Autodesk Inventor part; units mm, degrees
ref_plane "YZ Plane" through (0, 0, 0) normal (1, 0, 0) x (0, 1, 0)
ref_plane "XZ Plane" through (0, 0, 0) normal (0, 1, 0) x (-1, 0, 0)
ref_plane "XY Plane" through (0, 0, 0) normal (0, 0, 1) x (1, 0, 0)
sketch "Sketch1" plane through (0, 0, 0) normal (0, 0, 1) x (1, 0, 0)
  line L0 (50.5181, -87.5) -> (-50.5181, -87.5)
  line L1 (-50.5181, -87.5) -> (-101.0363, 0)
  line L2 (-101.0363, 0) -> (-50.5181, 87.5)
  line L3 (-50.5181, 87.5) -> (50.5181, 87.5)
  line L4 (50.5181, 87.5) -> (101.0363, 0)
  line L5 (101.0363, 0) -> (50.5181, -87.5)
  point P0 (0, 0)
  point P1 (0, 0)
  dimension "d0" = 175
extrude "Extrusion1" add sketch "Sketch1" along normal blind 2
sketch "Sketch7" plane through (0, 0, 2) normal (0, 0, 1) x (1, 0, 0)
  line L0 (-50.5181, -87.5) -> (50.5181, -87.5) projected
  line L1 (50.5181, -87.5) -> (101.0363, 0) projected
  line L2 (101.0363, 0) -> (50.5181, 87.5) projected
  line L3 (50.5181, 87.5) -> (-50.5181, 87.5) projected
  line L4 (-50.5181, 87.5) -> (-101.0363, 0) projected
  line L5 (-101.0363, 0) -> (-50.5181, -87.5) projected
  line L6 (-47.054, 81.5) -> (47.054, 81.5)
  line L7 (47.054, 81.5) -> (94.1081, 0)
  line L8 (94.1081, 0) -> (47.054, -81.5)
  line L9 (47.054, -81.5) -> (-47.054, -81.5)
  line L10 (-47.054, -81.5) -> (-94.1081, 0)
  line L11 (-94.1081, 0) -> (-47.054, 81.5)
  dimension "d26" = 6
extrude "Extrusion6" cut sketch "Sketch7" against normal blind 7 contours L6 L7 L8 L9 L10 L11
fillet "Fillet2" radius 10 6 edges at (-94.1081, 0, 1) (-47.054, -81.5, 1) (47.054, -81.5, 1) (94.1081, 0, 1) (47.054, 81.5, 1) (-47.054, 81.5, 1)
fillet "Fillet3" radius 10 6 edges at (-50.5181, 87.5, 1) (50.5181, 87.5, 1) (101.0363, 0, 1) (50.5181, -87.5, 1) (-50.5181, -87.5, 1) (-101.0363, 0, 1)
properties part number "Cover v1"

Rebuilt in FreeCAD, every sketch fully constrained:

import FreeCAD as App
import Part
import Sketcher
Q = App.Units.Quantity


def edges_at(feature, points):
    """Names of the edges that pass closest to the given points."""
    edges = feature.Shape.Edges
    near = lambda p: min(range(len(edges)), key=lambda i: edges[i].distToShape(Part.Vertex(*p))[0])
    return sorted({f"Edge{near(p) + 1}" for p in points})

doc = App.newDocument("Part")
body = doc.addObject("PartDesign::Body", "Body")

sketch1 = doc.addObject("Sketcher::SketchObject", "Sketch")
body.addObject(sketch1)
sketch1.AttachmentSupport = (doc.XY_Plane, [""])
sketch1.MapMode = "FlatFace"
sketch1.addGeometry([
    Part.LineSegment(App.Vector(-51, -88, 0), App.Vector(51, -88, 0)),
    Part.LineSegment(App.Vector(51, -88, 0), App.Vector(101, 0, 0)),
    Part.LineSegment(App.Vector(101, 0, 0), App.Vector(51, 88, 0)),
    Part.LineSegment(App.Vector(51, 88, 0), App.Vector(-51, 88, 0)),
    Part.LineSegment(App.Vector(-51, 88, 0), App.Vector(-101, 0, 0)),
    Part.LineSegment(App.Vector(-101, 0, 0), App.Vector(-51, -88, 0)),
], False)
sketch1.addConstraint([
    Sketcher.Constraint("Coincident", 0, 2, 1, 1),
    Sketcher.Constraint("Coincident", 1, 2, 2, 1),
    Sketcher.Constraint("Coincident", 2, 2, 3, 1),
    Sketcher.Constraint("Coincident", 3, 2, 4, 1),
    Sketcher.Constraint("Coincident", 4, 2, 5, 1),
    Sketcher.Constraint("Coincident", 5, 2, 0, 1),
    Sketcher.Constraint("Horizontal", 0),
    Sketcher.Constraint("Horizontal", 3),
    Sketcher.Constraint("Symmetric", 0, 2, 3, 2, -1, 1),
    Sketcher.Constraint("Symmetric", 1, 2, 4, 2, -1, 1),
    Sketcher.Constraint("PointOnObject", 1, 2, -1),
    Sketcher.Constraint("Parallel", 2, 5),
    Sketcher.Constraint("Vertical", 0, 2, 2, 2),
    Sketcher.Constraint("DistanceY", 0, 2, 2, 2, Q("175 mm")),
    Sketcher.Constraint("Angle", 1, Q("60 deg")),
    Sketcher.Constraint("DistanceX", 0, 1, 0, 2, Q("101.0362 mm")),
])
pad1 = doc.addObject("PartDesign::Pad", "Pad")
body.addObject(pad1)
pad1.Profile = sketch1
pad1.Length = 2

sketch2 = doc.addObject("Sketcher::SketchObject", "Sketch001")
body.addObject(sketch2)
sketch2.AttachmentSupport = (doc.XY_Plane, [""])
sketch2.MapMode = "FlatFace"
sketch2.AttachmentOffset = App.Placement(App.Vector(0, 0, 2), App.Rotation())
sketch2.addGeometry([
    Part.LineSegment(App.Vector(47, 82, 0), App.Vector(-47, 82, 0)),
    Part.LineSegment(App.Vector(-47, 82, 0), App.Vector(-94, 0, 0)),
    Part.LineSegment(App.Vector(-94, 0, 0), App.Vector(-47, -82, 0)),
    Part.LineSegment(App.Vector(-47, -82, 0), App.Vector(47, -82, 0)),
    Part.LineSegment(App.Vector(47, -82, 0), App.Vector(94, 0, 0)),
    Part.LineSegment(App.Vector(94, 0, 0), App.Vector(47, 82, 0)),
], False)
sketch2.addConstraint([
    Sketcher.Constraint("Coincident", 0, 2, 1, 1),
    Sketcher.Constraint("Coincident", 1, 2, 2, 1),
    Sketcher.Constraint("Coincident", 2, 2, 3, 1),
    Sketcher.Constraint("Coincident", 3, 2, 4, 1),
    Sketcher.Constraint("Coincident", 4, 2, 5, 1),
    Sketcher.Constraint("Coincident", 5, 2, 0, 1),
    Sketcher.Constraint("Horizontal", 0),
    Sketcher.Constraint("Horizontal", 3),
    Sketcher.Constraint("Symmetric", 0, 2, 3, 2, -1, 1),
    Sketcher.Constraint("Symmetric", 1, 2, 4, 2, -1, 1),
    Sketcher.Constraint("PointOnObject", 1, 2, -1),
    Sketcher.Constraint("Parallel", 2, 5),
    Sketcher.Constraint("Vertical", 0, 2, 2, 2),
    Sketcher.Constraint("Angle", 1, Q("-120 deg")),
    Sketcher.Constraint("DistanceY", 2, 2, 0, 2, Q("163 mm")),
    Sketcher.Constraint("DistanceX", 0, 2, 0, 1, Q("94.108 mm")),
])
pocket1 = doc.addObject("PartDesign::Pocket", "Pocket")
body.addObject(pocket1)
pocket1.Profile = sketch2
pocket1.Length = 7
doc.recompute()

fillet = doc.addObject("PartDesign::Fillet", "Fillet")
body.addObject(fillet)
fillet.Base = (pocket1, edges_at(pocket1, [
    (-94.108, 0, 1),
    (-47.054, -81.5, 1),
    (47.054, -81.5, 1),
    (94.108, 0, 1),
    (47.054, 81.5, 1),
    (-47.054, 81.5, 1),
]))
fillet.Radius = 10
doc.recompute()

fillet2 = doc.addObject("PartDesign::Fillet", "Fillet001")
body.addObject(fillet2)
fillet2.Base = (fillet, edges_at(fillet, [
    (-50.518, 87.5, 1),
    (50.518, 87.5, 1),
    (101.036, 0, 1),
    (50.518, -87.5, 1),
    (-50.518, -87.5, 1),
    (-101.036, 0, 1),
]))
fillet2.Radius = 10

doc.recompute()
